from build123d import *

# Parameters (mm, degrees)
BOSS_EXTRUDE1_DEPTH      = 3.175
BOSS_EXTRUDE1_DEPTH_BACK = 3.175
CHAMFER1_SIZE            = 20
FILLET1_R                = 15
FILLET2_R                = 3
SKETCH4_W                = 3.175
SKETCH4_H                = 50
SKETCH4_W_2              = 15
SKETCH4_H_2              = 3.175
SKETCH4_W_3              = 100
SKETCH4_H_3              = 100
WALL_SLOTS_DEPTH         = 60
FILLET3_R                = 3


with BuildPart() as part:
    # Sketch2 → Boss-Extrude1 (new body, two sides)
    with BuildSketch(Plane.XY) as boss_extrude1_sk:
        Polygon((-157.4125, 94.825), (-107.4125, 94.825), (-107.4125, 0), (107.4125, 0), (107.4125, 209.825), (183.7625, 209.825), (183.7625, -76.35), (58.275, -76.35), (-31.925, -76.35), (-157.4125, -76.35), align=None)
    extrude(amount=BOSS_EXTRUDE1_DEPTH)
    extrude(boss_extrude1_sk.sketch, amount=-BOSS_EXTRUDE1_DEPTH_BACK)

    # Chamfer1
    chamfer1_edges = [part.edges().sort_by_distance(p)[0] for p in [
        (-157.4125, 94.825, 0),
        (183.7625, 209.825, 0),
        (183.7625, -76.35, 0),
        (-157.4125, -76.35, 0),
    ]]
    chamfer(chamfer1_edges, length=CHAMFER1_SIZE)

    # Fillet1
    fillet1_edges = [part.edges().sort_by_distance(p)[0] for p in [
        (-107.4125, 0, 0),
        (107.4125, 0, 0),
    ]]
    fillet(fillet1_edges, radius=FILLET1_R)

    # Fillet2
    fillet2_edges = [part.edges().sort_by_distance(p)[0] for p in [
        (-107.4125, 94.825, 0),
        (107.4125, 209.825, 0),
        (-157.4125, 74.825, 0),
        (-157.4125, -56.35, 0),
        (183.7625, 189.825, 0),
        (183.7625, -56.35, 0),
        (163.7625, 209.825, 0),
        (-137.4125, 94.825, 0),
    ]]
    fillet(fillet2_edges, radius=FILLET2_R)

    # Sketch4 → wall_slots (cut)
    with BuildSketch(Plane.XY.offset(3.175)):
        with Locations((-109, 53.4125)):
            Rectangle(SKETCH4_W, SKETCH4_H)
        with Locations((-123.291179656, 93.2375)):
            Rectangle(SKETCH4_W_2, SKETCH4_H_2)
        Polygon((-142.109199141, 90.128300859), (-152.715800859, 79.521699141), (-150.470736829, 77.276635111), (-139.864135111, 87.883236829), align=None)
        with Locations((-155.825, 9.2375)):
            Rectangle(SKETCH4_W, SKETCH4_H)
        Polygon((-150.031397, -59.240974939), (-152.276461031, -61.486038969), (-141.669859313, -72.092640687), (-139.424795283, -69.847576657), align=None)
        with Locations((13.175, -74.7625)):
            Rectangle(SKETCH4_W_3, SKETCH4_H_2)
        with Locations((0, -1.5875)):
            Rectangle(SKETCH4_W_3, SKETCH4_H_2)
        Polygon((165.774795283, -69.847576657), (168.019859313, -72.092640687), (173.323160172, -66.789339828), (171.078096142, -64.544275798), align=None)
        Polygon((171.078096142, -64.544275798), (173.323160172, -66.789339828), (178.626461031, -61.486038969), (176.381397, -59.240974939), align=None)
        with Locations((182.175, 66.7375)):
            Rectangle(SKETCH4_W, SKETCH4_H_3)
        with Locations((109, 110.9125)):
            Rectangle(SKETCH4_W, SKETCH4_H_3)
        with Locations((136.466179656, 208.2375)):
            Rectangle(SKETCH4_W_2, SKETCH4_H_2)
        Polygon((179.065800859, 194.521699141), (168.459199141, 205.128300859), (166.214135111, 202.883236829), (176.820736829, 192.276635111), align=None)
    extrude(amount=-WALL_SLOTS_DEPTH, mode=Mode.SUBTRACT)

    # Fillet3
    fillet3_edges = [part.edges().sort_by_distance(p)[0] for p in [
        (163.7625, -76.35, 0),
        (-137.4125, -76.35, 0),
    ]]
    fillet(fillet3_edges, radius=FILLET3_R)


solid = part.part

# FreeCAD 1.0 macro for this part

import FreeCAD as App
import Part
import Sketcher


def edges_at(feature, points):
    """Names of the edges that pass closest to the given points."""
    edges = feature.Shape.Edges
    near = lambda p: min(range(len(edges)), key=lambda i: edges[i].distToShape(Part.Vertex(*p))[0])
    return sorted({f"Edge{near(p) + 1}" for p in points})


def add_polygon(sketch, points):
    """Adds a closed chain of lines whose ends are joined by coincident constraints."""
    first, n = sketch.GeometryCount, len(points)
    for a, b in zip(points, points[1:] + points[:1]):
        sketch.addGeometry(Part.LineSegment(App.Vector(*a, 0), App.Vector(*b, 0)), False)
    for i in range(n):
        sketch.addConstraint(Sketcher.Constraint("Coincident", first + i, 2, first + (i + 1) % n, 1))

doc = App.newDocument("Part")
body = doc.addObject("PartDesign::Body", "Body")

sketch1 = doc.addObject("Sketcher::SketchObject", "Sketch")
body.addObject(sketch1)
sketch1.AttachmentSupport = (doc.XY_Plane, [""])
sketch1.MapMode = "FlatFace"
add_polygon(sketch1, [(-107, 95), (-157, 95), (-157, -76), (184, -76), (184, 210), (107, 210), (107, 0), (-107, 0)])
sketch1.addConstraint([
    Sketcher.Constraint("Horizontal", 0),
    Sketcher.Constraint("Vertical", 1),
    Sketcher.Constraint("Horizontal", 2),
    Sketcher.Constraint("Vertical", 3),
    Sketcher.Constraint("Horizontal", 4),
    Sketcher.Constraint("Vertical", 5),
    Sketcher.Constraint("Horizontal", 6),
    Sketcher.Constraint("Vertical", 7),
    Sketcher.Constraint("Symmetric", 5, 2, 6, 2, -1, 1),
    Sketcher.Constraint("DistanceX", 0, 2, 0, 1, 50.0),
    Sketcher.Constraint("DistanceY", 0, 2, 3, 2, 115.0),
    Sketcher.Constraint("DistanceX", 4, 2, 4, 1, 76.35),
    Sketcher.Constraint("DistanceX", 2, 1, 2, 2, 341.175),
    Sketcher.Constraint("DistanceY", 1, 2, 1, 1, 171.175),
    Sketcher.Constraint("DistanceY", 5, 2, 5, 1, 209.825),
])
pad1 = doc.addObject("PartDesign::Pad", "Pad")
body.addObject(pad1)
pad1.Profile = sketch1
pad1.Type = "TwoLengths"
pad1.Length = 3.175
pad1.Length2 = 3.175
doc.recompute()

chamfer = doc.addObject("PartDesign::Chamfer", "Chamfer")
body.addObject(chamfer)
chamfer.Base = (pad1, edges_at(pad1, [
    (-157.412, 94.825, 0),
    (183.762, 209.825, 0),
    (183.762, -76.35, 0),
    (-157.412, -76.35, 0),
]))
chamfer.Size = 20
doc.recompute()

fillet = doc.addObject("PartDesign::Fillet", "Fillet")
body.addObject(fillet)
fillet.Base = (chamfer, edges_at(chamfer, [(-107.412, 0, 0), (107.412, 0, 0)]))
fillet.Radius = 15
doc.recompute()

fillet2 = doc.addObject("PartDesign::Fillet", "Fillet001")
body.addObject(fillet2)
fillet2.Base = (fillet, edges_at(fillet, [
    (-107.412, 94.825, 0),
    (107.412, 209.825, 0),
    (-157.412, 74.825, 0),
    (-157.412, -56.35, 0),
    (183.762, 189.825, 0),
    (183.762, -56.35, 0),
    (163.762, 209.825, 0),
    (-137.412, 94.825, 0),
]))
fillet2.Radius = 3

sketch2 = doc.addObject("Sketcher::SketchObject", "Sketch001")
body.addObject(sketch2)
sketch2.AttachmentSupport = (doc.XY_Plane, [""])
sketch2.MapMode = "FlatFace"
sketch2.AttachmentOffset = App.Placement(App.Vector(0, 0, 3.175), App.Rotation())
add_polygon(sketch2, [(-110.6, 78.4), (-110.6, 28.4), (-107.4, 28.4), (-107.4, 78.4)])
add_polygon(sketch2, [(-130.8, 94.8), (-130.8, 91.7), (-115.8, 91.7), (-115.8, 94.8)])
add_polygon(sketch2, [(-142.1, 90.1), (-152.7, 79.5), (-150.5, 77.3), (-139.9, 87.9)])
add_polygon(sketch2, [(-157.4, 34.2), (-157.4, -15.8), (-154.2, -15.8), (-154.2, 34.2)])
add_polygon(sketch2, [(-150, -59.2), (-152.3, -61.5), (-141.7, -72.1), (-139.4, -69.8)])
add_polygon(sketch2, [(-36.8, -73.2), (-36.8, -76.3), (63.2, -76.3), (63.2, -73.2)])
add_polygon(sketch2, [(-50, 0), (-50, -3.2), (50, -3.2), (50, 0)])
add_polygon(sketch2, [(165.8, -69.8), (168, -72.1), (178.6, -61.5), (176.4, -59.2), (171.1, -64.5)])
add_polygon(sketch2, [(180.6, 116.7), (180.6, 16.7), (183.8, 16.7), (183.8, 116.7)])
add_polygon(sketch2, [(107.4, 160.9), (107.4, 60.9), (110.6, 60.9), (110.6, 160.9)])
add_polygon(sketch2, [(129, 209.8), (129, 206.7), (144, 206.7), (144, 209.8)])
add_polygon(sketch2, [(179.1, 194.5), (168.5, 205.1), (166.2, 202.9), (176.8, 192.3)])
sketch2.addConstraint([
    Sketcher.Constraint("Vertical", 0),
    Sketcher.Constraint("Horizontal", 1),
    Sketcher.Constraint("Vertical", 2),
    Sketcher.Constraint("Horizontal", 3),
    Sketcher.Constraint("Vertical", 4),
    Sketcher.Constraint("Horizontal", 5),
    Sketcher.Constraint("Vertical", 6),
    Sketcher.Constraint("Horizontal", 7),
    Sketcher.Constraint("Vertical", 12),
    Sketcher.Constraint("Horizontal", 13),
    Sketcher.Constraint("Vertical", 14),
    Sketcher.Constraint("Horizontal", 15),
    Sketcher.Constraint("Vertical", 20),
    Sketcher.Constraint("Horizontal", 21),
    Sketcher.Constraint("Vertical", 22),
    Sketcher.Constraint("Horizontal", 23),
    Sketcher.Constraint("Vertical", 24),
    Sketcher.Constraint("Horizontal", 25),
    Sketcher.Constraint("Vertical", 26),
    Sketcher.Constraint("Horizontal", 27),
    Sketcher.Constraint("Vertical", 33),
    Sketcher.Constraint("Horizontal", 34),
    Sketcher.Constraint("Vertical", 35),
    Sketcher.Constraint("Horizontal", 36),
    Sketcher.Constraint("Vertical", 37),
    Sketcher.Constraint("Horizontal", 38),
    Sketcher.Constraint("Vertical", 39),
    Sketcher.Constraint("Horizontal", 40),
    Sketcher.Constraint("Vertical", 41),
    Sketcher.Constraint("Horizontal", 42),
    Sketcher.Constraint("Vertical", 43),
    Sketcher.Constraint("Horizontal", 44),
    Sketcher.Constraint("Symmetric", 26, 2, 27, 2, -1, 1),
    Sketcher.Constraint("Perpendicular", 8, 9),
    Sketcher.Constraint("Perpendicular", 9, 10),
    Sketcher.Constraint("Perpendicular", 10, 11),
    Sketcher.Constraint("Perpendicular", 11, 16),
    Sketcher.Constraint("Perpendicular", 16, 17),
    Sketcher.Constraint("Perpendicular", 17, 18),
    Sketcher.Constraint("Perpendicular", 18, 19),
    Sketcher.Constraint("Parallel", 19, 28),
    Sketcher.Constraint("Perpendicular", 28, 29),
    Sketcher.Constraint("Perpendicular", 29, 30),
    Sketcher.Constraint("Perpendicular", 30, 31),
    Sketcher.Constraint("Parallel", 31, 32),
    Sketcher.Constraint("Perpendicular", 32, 45),
    Sketcher.Constraint("Perpendicular", 45, 46),
    Sketcher.Constraint("Perpendicular", 46, 47),
    Sketcher.Constraint("Perpendicular", 47, 48),
    Sketcher.Constraint("Horizontal", 17, 2, 28, 2),
    Sketcher.Constraint("Horizontal", 16, 2, 29, 2),
    Sketcher.Constraint("Horizontal", 19, 2, 30, 2),
    Sketcher.Constraint("Equal", 3, 13),
    Sketcher.Constraint("Equal", 23, 25),
    Sketcher.Constraint("Equal", 15, 34),
    Sketcher.Constraint("Equal", 36, 38),
    Sketcher.Constraint("Equal", 7, 42),
    Sketcher.Constraint("Equal", 40, 4),
    Sketcher.Constraint("Equal", 2, 12),
    Sketcher.Constraint("Equal", 6, 20),
    Sketcher.Constraint("Equal", 22, 24),
    Sketcher.Constraint("Equal", 27, 33),
    Sketcher.Constraint("Equal", 35, 37),
    Sketcher.Constraint("Equal", 26, 41),
    Sketcher.Constraint("Equal", 11, 16),
    Sketcher.Constraint("Equal", 10, 17),
    Sketcher.Constraint("Equal", 18, 28),
    Sketcher.Constraint("Equal", 31, 32),
    Sketcher.Constraint("Equal", 29, 45),
    Sketcher.Constraint("Equal", 30, 46),
    Sketcher.Constraint("DistanceX", 5, 1, 5, 2, 15.0),
    Sketcher.Constraint("DistanceX", 21, 1, 21, 2, 100.0),
    Sketcher.Constraint("DistanceY", 0, 2, 0, 1, 50.0),
    Sketcher.Constraint("Distance", 8, 15.0),
    Sketcher.Constraint("DistanceX", 12, 2, 1, 2, 50.0),
    Sketcher.Constraint("DistanceY", 23, 2, 24, 2, 70.0),
    Sketcher.Constraint("DistanceX", 38, 2, 33, 2, 70.0),
    Sketcher.Constraint("DistanceX", 1, 1, 1, 2, 3.175),
    Sketcher.Constraint("DistanceY", -1, 1, 4, 2, 91.65),
    Sketcher.Constraint("DistanceY", -1, 1, 41, 2, 206.65),
    Sketcher.Constraint("Distance", 9, 3.175),
    Sketcher.Constraint("DistanceX", 20, 2, -1, 1, 36.825),
    Sketcher.Constraint("DistanceY", 12, 2, 0, 2, 44.175),
    Sketcher.Constraint("DistanceY", 33, 2, 37, 2, 44.175),
    Sketcher.Constraint("DistanceX", 0, 2, -1, 1, 110.5875),
    Sketcher.Constraint("DistanceY", -1, 1, 0, 2, 28.4125),
    Sketcher.Constraint("DistanceX", 8, 2, -1, 1, 152.715801),
    Sketcher.Constraint("DistanceY", -1, 1, 8, 2, 79.521699),
    Sketcher.Constraint("DistanceX", -1, 1, 33, 2, 180.5875),
    Sketcher.Constraint("DistanceY", -1, 1, 33, 2, 16.7375),
    Sketcher.Constraint("DistanceX", -1, 1, 45, 2, 168.459199),
    Sketcher.Constraint("DistanceY", -1, 1, 45, 2, 205.128301),
    Sketcher.Constraint("DistanceX", 4, 2, -1, 1, 130.79118),
    Sketcher.Constraint("DistanceX", 16, 2, -1, 1, 152.276461),
    Sketcher.Constraint("DistanceY", 16, 2, -1, 1, 61.486039),
    Sketcher.Constraint("DistanceX", -1, 1, 28, 2, 168.019859),
    Sketcher.Constraint("DistanceX", -1, 1, 41, 2, 128.96618),
])
pocket1 = doc.addObject("PartDesign::Pocket", "Pocket")
body.addObject(pocket1)
pocket1.Profile = sketch2
pocket1.Length = 60
doc.recompute()

fillet3 = doc.addObject("PartDesign::Fillet", "Fillet002")
body.addObject(fillet3)
fillet3.Base = (pocket1, edges_at(pocket1, [(163.762, -76.35, 0), (-137.412, -76.35, 0)]))
fillet3.Radius = 3

doc.recompute()
